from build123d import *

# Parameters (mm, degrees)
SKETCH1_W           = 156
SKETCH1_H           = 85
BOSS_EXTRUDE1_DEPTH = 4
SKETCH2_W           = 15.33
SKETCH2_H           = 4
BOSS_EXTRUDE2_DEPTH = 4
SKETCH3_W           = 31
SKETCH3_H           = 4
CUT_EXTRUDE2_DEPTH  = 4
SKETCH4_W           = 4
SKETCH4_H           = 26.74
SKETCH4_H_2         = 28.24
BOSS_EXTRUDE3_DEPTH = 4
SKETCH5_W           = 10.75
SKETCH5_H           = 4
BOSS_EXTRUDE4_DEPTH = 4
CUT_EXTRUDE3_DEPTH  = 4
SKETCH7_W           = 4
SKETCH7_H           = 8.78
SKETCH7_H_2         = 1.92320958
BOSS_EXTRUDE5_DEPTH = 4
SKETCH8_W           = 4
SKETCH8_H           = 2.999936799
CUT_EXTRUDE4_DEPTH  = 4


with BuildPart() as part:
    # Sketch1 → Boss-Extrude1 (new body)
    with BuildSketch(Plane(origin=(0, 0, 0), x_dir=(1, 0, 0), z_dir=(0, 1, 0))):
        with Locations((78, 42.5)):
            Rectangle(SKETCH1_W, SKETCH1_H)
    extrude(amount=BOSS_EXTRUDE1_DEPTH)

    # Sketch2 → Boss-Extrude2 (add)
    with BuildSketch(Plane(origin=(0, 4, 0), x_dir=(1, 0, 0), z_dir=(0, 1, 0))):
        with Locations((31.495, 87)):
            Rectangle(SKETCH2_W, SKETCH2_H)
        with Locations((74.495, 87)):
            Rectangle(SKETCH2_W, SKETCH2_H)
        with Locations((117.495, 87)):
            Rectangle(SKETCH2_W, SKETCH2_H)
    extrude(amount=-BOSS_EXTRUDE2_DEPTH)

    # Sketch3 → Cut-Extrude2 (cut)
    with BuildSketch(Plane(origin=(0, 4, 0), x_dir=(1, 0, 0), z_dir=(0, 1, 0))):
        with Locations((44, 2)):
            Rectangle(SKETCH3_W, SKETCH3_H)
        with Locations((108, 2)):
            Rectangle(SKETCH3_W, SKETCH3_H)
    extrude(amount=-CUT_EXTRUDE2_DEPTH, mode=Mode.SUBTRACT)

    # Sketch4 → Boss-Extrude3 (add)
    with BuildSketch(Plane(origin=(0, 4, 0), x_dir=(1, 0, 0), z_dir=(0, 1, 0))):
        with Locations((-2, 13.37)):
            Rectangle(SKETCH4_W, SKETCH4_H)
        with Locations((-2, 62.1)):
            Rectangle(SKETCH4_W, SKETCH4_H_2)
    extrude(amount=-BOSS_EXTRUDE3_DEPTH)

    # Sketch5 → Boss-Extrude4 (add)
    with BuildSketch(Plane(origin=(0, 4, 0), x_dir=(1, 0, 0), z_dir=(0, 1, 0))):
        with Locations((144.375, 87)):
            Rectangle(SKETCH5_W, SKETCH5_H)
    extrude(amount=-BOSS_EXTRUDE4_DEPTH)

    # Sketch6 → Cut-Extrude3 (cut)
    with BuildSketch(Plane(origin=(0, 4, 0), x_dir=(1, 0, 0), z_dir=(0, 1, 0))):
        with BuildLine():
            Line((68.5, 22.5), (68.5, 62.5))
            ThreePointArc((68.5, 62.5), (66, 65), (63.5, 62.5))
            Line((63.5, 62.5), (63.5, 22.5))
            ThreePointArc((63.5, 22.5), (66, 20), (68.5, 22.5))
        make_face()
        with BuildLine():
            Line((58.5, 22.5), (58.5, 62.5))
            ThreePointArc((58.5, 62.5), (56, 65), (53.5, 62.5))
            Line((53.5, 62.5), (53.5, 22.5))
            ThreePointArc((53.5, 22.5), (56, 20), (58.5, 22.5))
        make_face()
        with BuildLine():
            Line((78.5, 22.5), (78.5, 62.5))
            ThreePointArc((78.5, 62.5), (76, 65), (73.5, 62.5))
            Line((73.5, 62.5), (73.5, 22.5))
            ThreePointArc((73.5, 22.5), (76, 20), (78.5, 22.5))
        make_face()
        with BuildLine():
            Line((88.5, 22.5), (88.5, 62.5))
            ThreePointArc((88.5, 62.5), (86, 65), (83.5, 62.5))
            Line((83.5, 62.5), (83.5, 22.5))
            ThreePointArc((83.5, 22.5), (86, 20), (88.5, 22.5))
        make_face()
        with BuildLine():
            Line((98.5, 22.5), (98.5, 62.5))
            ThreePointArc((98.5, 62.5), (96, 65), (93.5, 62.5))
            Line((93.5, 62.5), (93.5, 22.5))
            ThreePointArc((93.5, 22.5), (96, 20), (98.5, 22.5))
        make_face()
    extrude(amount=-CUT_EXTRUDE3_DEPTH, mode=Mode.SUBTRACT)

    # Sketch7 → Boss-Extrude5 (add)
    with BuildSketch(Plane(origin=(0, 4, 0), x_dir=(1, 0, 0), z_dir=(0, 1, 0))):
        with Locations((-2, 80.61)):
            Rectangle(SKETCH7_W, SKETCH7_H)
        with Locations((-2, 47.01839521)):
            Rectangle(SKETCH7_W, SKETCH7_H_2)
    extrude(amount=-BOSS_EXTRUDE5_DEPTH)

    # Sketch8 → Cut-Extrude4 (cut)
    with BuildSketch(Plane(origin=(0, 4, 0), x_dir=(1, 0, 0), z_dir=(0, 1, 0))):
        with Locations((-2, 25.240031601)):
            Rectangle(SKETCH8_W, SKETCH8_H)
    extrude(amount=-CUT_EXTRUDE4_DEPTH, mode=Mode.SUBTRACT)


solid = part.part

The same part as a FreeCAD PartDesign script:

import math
import FreeCAD as App
import Part
import Sketcher
Q = App.Units.Quantity


def add_polygon(sketch, points):
    """Adds a closed chain of lines whose ends are joined by coincident constraints."""
    first, n = sketch.GeometryCount, len(points)
    for a, b in zip(points, points[1:] + points[:1]):
        sketch.addGeometry(Part.LineSegment(App.Vector(*a, 0), App.Vector(*b, 0)), False)
    for i in range(n):
        sketch.addConstraint(Sketcher.Constraint("Coincident", first + i, 2, first + (i + 1) % n, 1))

doc = App.newDocument("Part")
params = doc.addObject("Spreadsheet::Sheet", "Params")
for row, (alias, value) in enumerate([
    ("sketch1_width", "156 mm"),
    ("sketch1_height", "85 mm"),
    ("pad1_length", "4 mm"),
    ("sketch2_height", "4 mm"),
    ("sketch2_width", "15.33 mm"),
    ("pad2_length", "4 mm"),
    ("sketch3_width", "31 mm"),
    ("sketch3_height", "4 mm"),
    ("pocket1_length", "4 mm"),
    ("sketch4_width", "4 mm"),
    ("sketch4_height", "26.74 mm"),
    ("sketch4_height2", "28.24 mm"),
    ("pad3_length", "4 mm"),
    ("sketch5_height", "4 mm"),
    ("sketch5_width", "10.75 mm"),
    ("pad4_length", "4 mm"),
    ("sketch6_radius", "2.5 mm"),
    ("sketch6_height", "40 mm"),
    ("pocket2_length", "4 mm"),
    ("sketch7_width", "4 mm"),
    ("sketch7_height", "8.78 mm"),
    ("pad5_length", "4 mm"),
    ("sketch8_width", "4 mm"),
    ("pocket3_length", "4 mm"),
], start=1):
    params.set(f"A{row}", alias)
    params.set(f"B{row}", "=" + value)
    params.setAlias(f"B{row}", alias)

body = doc.addObject("PartDesign::Body", "Body")

# Sketch on XZ plane
sketch1 = body.newObject("Sketcher::SketchObject", "Sketch")
sketch1.AttachmentSupport = (doc.getObject("XZ_Plane"), [""])
sketch1.MapMode = "FlatFace"
add_polygon(sketch1, [(0, -85), (0, 0), (156, 0), (156, -85)])  # lines 0-3
sketch1.addConstraint([
    Sketcher.Constraint("Vertical", 0),
    Sketcher.Constraint("Horizontal", 1),
    Sketcher.Constraint("Vertical", 2),
    Sketcher.Constraint("Horizontal", 3),
    Sketcher.Constraint("Coincident", 0, 2, -1, 1),
    Sketcher.Constraint("DistanceX", 1, 1, 1, 2, Q("156 mm")),
    Sketcher.Constraint("DistanceY", 0, 1, 0, 2, Q("85 mm")),
])
sketch1.setExpression("Constraints[9]", "Params.sketch1_width")
sketch1.setExpression("Constraints[10]", "Params.sketch1_height")
pad1 = body.newObject("PartDesign::Pad", "Pad")
pad1.Profile = sketch1
pad1.setExpression("Length", "Params.pad1_length")
pad1.Reversed = True

# Sketch on XZ plane
sketch2 = body.newObject("Sketcher::SketchObject", "Sketch001")
sketch2.AttachmentSupport = (doc.getObject("XZ_Plane"), [""])
sketch2.MapMode = "FlatFace"
sketch2.AttachmentOffset = App.Placement(App.Vector(0, 0, -4), App.Rotation())
add_polygon(sketch2, [(23.83, -89), (23.83, -85), (39.16, -85), (39.16, -89)])  # lines 0-3
add_polygon(sketch2, [(66.83, -89), (66.83, -85), (82.16, -85), (82.16, -89)])  # lines 4-7
add_polygon(sketch2, [(109.83, -89), (109.83, -85), (125.16, -85), (125.16, -89)])  # lines 8-11
sketch2.addConstraint([
    Sketcher.Constraint("Vertical", 0),
    Sketcher.Constraint("Horizontal", 1),
    Sketcher.Constraint("Vertical", 2),
    Sketcher.Constraint("Horizontal", 3),
    Sketcher.Constraint("Vertical", 4),
    Sketcher.Constraint("Horizontal", 5),
    Sketcher.Constraint("Vertical", 6),
    Sketcher.Constraint("Horizontal", 7),
    Sketcher.Constraint("Vertical", 8),
    Sketcher.Constraint("Horizontal", 9),
    Sketcher.Constraint("Vertical", 10),
    Sketcher.Constraint("Horizontal", 11),
    Sketcher.Constraint("Horizontal", 1, 2, 4, 2),
    Sketcher.Constraint("Horizontal", 3, 2, 6, 2),
    Sketcher.Constraint("Horizontal", 5, 2, 8, 2),
    Sketcher.Constraint("Horizontal", 7, 2, 10, 2),
    Sketcher.Constraint("Equal", 3, 5),
    Sketcher.Constraint("Equal", 7, 9),
    Sketcher.Constraint("DistanceY", 0, 1, 0, 2, Q("4 mm")),
    Sketcher.Constraint("DistanceY", 0, 2, -1, 1, Q("85 mm")),
    Sketcher.Constraint("DistanceX", 0, 2, 4, 2, Q("43 mm")),
    Sketcher.Constraint("DistanceX", 4, 2, 8, 2, Q("43 mm")),
    Sketcher.Constraint("DistanceX", 1, 1, 1, 2, Q("15.33 mm")),
    Sketcher.Constraint("DistanceX", -1, 1, 0, 2, Q("23.83 mm")),
])
sketch2.setExpression("Constraints[30]", "Params.sketch2_height")
sketch2.setExpression("Constraints[34]", "Params.sketch2_width")
pad2 = body.newObject("PartDesign::Pad", "Pad001")
pad2.Profile = sketch2
pad2.setExpression("Length", "Params.pad2_length")

# Sketch on XZ plane
sketch3 = body.newObject("Sketcher::SketchObject", "Sketch002")
sketch3.AttachmentSupport = (doc.getObject("XZ_Plane"), [""])
sketch3.MapMode = "FlatFace"
sketch3.AttachmentOffset = App.Placement(App.Vector(0, 0, -4), App.Rotation())
add_polygon(sketch3, [(28.5, -4), (28.5, 0), (59.5, 0), (59.5, -4)])  # lines 0-3
add_polygon(sketch3, [(92.5, -4), (92.5, 0), (123.5, 0), (123.5, -4)])  # lines 4-7
sketch3.addConstraint([
    Sketcher.Constraint("Vertical", 0),
    Sketcher.Constraint("Horizontal", 1),
    Sketcher.Constraint("Vertical", 2),
    Sketcher.Constraint("Horizontal", 3),
    Sketcher.Constraint("Vertical", 4),
    Sketcher.Constraint("Horizontal", 5),
    Sketcher.Constraint("Vertical", 6),
    Sketcher.Constraint("Horizontal", 7),
    Sketcher.Constraint("PointOnObject", 0, 2, -1),
    Sketcher.Constraint("PointOnObject", 4, 2, -1),
    Sketcher.Constraint("Horizontal", 3, 2, 6, 2),
    Sketcher.Constraint("Equal", 3, 5),
    Sketcher.Constraint("DistanceX", 1, 1, 1, 2, Q("31 mm")),
    Sketcher.Constraint("DistanceY", 0, 1, 0, 2, Q("4 mm")),
    Sketcher.Constraint("DistanceX", 1, 2, 4, 2, Q("33 mm")),
    Sketcher.Constraint("DistanceX", -1, 1, 0, 2, Q("28.5 mm")),
])
sketch3.setExpression("Constraints[20]", "Params.sketch3_width")
sketch3.setExpression("Constraints[21]", "Params.sketch3_height")
pocket1 = body.newObject("PartDesign::Pocket", "Pocket")
pocket1.Profile = sketch3
pocket1.setExpression("Length", "Params.pocket1_length")
pocket1.Reversed = True

# Sketch on XZ plane
sketch4 = body.newObject("Sketcher::SketchObject", "Sketch003")
sketch4.AttachmentSupport = (doc.getObject("XZ_Plane"), [""])
sketch4.MapMode = "FlatFace"
sketch4.AttachmentOffset = App.Placement(App.Vector(0, 0, -4), App.Rotation())
add_polygon(sketch4, [(-4, -26.74), (-4, 0), (0, 0), (0, -26.74)])  # lines 0-3
add_polygon(sketch4, [(-4, -76.22), (-4, -47.98), (0, -47.98), (0, -76.22)])  # lines 4-7
sketch4.addConstraint([
    Sketcher.Constraint("Vertical", 0),
    Sketcher.Constraint("Horizontal", 1),
    Sketcher.Constraint("Vertical", 2),
    Sketcher.Constraint("Horizontal", 3),
    Sketcher.Constraint("Vertical", 4),
    Sketcher.Constraint("Horizontal", 5),
    Sketcher.Constraint("Vertical", 6),
    Sketcher.Constraint("Horizontal", 7),
    Sketcher.Constraint("Coincident", 1, 2, -1, 1),
    Sketcher.Constraint("PointOnObject", 5, 2, -2),
    Sketcher.Constraint("Vertical", 3, 2, 4, 2),
    Sketcher.Constraint("DistanceX", 1, 1, 1, 2, Q("4 mm")),
    Sketcher.Constraint("DistanceY", 0, 1, 0, 2, Q("26.74 mm")),
    Sketcher.Constraint("DistanceY", 4, 1, 4, 2, Q("28.24 mm")),
    Sketcher.Constraint("DistanceY", 4, 2, -1, 1, Q("47.98 mm")),
])
sketch4.setExpression("Constraints[19]", "Params.sketch4_width")
sketch4.setExpression("Constraints[20]", "Params.sketch4_height")
sketch4.setExpression("Constraints[21]", "Params.sketch4_height2")
pad3 = body.newObject("PartDesign::Pad", "Pad002")
pad3.Profile = sketch4
pad3.setExpression("Length", "Params.pad3_length")

# Sketch on XZ plane
sketch5 = body.newObject("Sketcher::SketchObject", "Sketch004")
sketch5.AttachmentSupport = (doc.getObject("XZ_Plane"), [""])
sketch5.MapMode = "FlatFace"
sketch5.AttachmentOffset = App.Placement(App.Vector(0, 0, -4), App.Rotation())
add_polygon(sketch5, [(139, -89), (139, -85), (149.75, -85), (149.75, -89)])  # lines 0-3
sketch5.addConstraint([
    Sketcher.Constraint("Vertical", 0),
    Sketcher.Constraint("Horizontal", 1),
    Sketcher.Constraint("Vertical", 2),
    Sketcher.Constraint("Horizontal", 3),
    Sketcher.Constraint("DistanceY", 0, 1, 0, 2, Q("4 mm")),
    Sketcher.Constraint("DistanceX", -1, 1, 0, 2, Q("139 mm")),
    Sketcher.Constraint("DistanceY", 0, 2, -1, 1, Q("85 mm")),
    Sketcher.Constraint("DistanceX", 1, 1, 1, 2, Q("10.75 mm")),
])
sketch5.setExpression("Constraints[8]", "Params.sketch5_height")
sketch5.setExpression("Constraints[11]", "Params.sketch5_width")
pad4 = body.newObject("PartDesign::Pad", "Pad003")
pad4.Profile = sketch5
pad4.setExpression("Length", "Params.pad4_length")

# Sketch on XZ plane
sketch6 = body.newObject("Sketcher::SketchObject", "Sketch005")
sketch6.AttachmentSupport = (doc.getObject("XZ_Plane"), [""])
sketch6.MapMode = "FlatFace"
sketch6.AttachmentOffset = App.Placement(App.Vector(0, 0, -4), App.Rotation())
sketch6.addGeometry([
    Part.LineSegment(App.Vector(68.5, -22.5, 0), App.Vector(68.5, -62.5, 0)),  # 0
    Part.ArcOfCircle(Part.Circle(App.Vector(66, -62.5, 0), App.Vector(0, 0, 1), 2.5), math.radians(180), math.radians(360)),  # 1
    Part.LineSegment(App.Vector(63.5, -62.5, 0), App.Vector(63.5, -22.5, 0)),  # 2
    Part.ArcOfCircle(Part.Circle(App.Vector(66, -22.5, 0), App.Vector(0, 0, 1), 2.5), math.radians(0), math.radians(180)),  # 3
    Part.LineSegment(App.Vector(58.5, -22.5, 0), App.Vector(58.5, -62.5, 0)),  # 4
    Part.ArcOfCircle(Part.Circle(App.Vector(56, -62.5, 0), App.Vector(0, 0, 1), 2.5), math.radians(180), math.radians(360)),  # 5
    Part.LineSegment(App.Vector(53.5, -62.5, 0), App.Vector(53.5, -22.5, 0)),  # 6
    Part.ArcOfCircle(Part.Circle(App.Vector(56, -22.5, 0), App.Vector(0, 0, 1), 2.5), math.radians(0), math.radians(180)),  # 7
    Part.LineSegment(App.Vector(78.5, -22.5, 0), App.Vector(78.5, -62.5, 0)),  # 8
    Part.ArcOfCircle(Part.Circle(App.Vector(76, -62.5, 0), App.Vector(0, 0, 1), 2.5), math.radians(180), math.radians(360)),  # 9
    Part.LineSegment(App.Vector(73.5, -62.5, 0), App.Vector(73.5, -22.5, 0)),  # 10
    Part.ArcOfCircle(Part.Circle(App.Vector(76, -22.5, 0), App.Vector(0, 0, 1), 2.5), math.radians(0), math.radians(180)),  # 11
    Part.LineSegment(App.Vector(88.5, -22.5, 0), App.Vector(88.5, -62.5, 0)),  # 12
    Part.ArcOfCircle(Part.Circle(App.Vector(86, -62.5, 0), App.Vector(0, 0, 1), 2.5), math.radians(180), math.radians(360)),  # 13
    Part.LineSegment(App.Vector(83.5, -62.5, 0), App.Vector(83.5, -22.5, 0)),  # 14
    Part.ArcOfCircle(Part.Circle(App.Vector(86, -22.5, 0), App.Vector(0, 0, 1), 2.5), math.radians(0), math.radians(180)),  # 15
    Part.LineSegment(App.Vector(98.5, -22.5, 0), App.Vector(98.5, -62.5, 0)),  # 16
    Part.ArcOfCircle(Part.Circle(App.Vector(96, -62.5, 0), App.Vector(0, 0, 1), 2.5), math.radians(180), math.radians(360)),  # 17
    Part.LineSegment(App.Vector(93.5, -62.5, 0), App.Vector(93.5, -22.5, 0)),  # 18
    Part.ArcOfCircle(Part.Circle(App.Vector(96, -22.5, 0), App.Vector(0, 0, 1), 2.5), math.radians(0), math.radians(180)),  # 19
], False)
sketch6.addConstraint([
    Sketcher.Constraint("Tangent", 0, 2, 1, 2),
    Sketcher.Constraint("Tangent", 1, 1, 2, 1),
    Sketcher.Constraint("Tangent", 2, 2, 3, 2),
    Sketcher.Constraint("Tangent", 3, 1, 0, 1),
    Sketcher.Constraint("Tangent", 4, 2, 5, 2),
    Sketcher.Constraint("Tangent", 5, 1, 6, 1),
    Sketcher.Constraint("Tangent", 6, 2, 7, 2),
    Sketcher.Constraint("Tangent", 7, 1, 4, 1),
    Sketcher.Constraint("Tangent", 8, 2, 9, 2),
    Sketcher.Constraint("Tangent", 9, 1, 10, 1),
    Sketcher.Constraint("Tangent", 10, 2, 11, 2),
    Sketcher.Constraint("Tangent", 11, 1, 8, 1),
    Sketcher.Constraint("Tangent", 12, 2, 13, 2),
    Sketcher.Constraint("Tangent", 13, 1, 14, 1),
    Sketcher.Constraint("Tangent", 14, 2, 15, 2),
    Sketcher.Constraint("Tangent", 15, 1, 12, 1),
    Sketcher.Constraint("Tangent", 16, 2, 17, 2),
    Sketcher.Constraint("Tangent", 17, 1, 18, 1),
    Sketcher.Constraint("Tangent", 18, 2, 19, 2),
    Sketcher.Constraint("Tangent", 19, 1, 16, 1),
    Sketcher.Constraint("Vertical", 0),
    Sketcher.Constraint("Vertical", 2),
    Sketcher.Constraint("Vertical", 4),
    Sketcher.Constraint("Vertical", 6),
    Sketcher.Constraint("Vertical", 8),
    Sketcher.Constraint("Vertical", 10),
    Sketcher.Constraint("Vertical", 12),
    Sketcher.Constraint("Vertical", 14),
    Sketcher.Constraint("Vertical", 16),
    Sketcher.Constraint("Vertical", 18),
    Sketcher.Constraint("Equal", 3, 5),
    Sketcher.Constraint("Equal", 7, 9),
    Sketcher.Constraint("Equal", 11, 13),
    Sketcher.Constraint("Equal", 15, 17),
    Sketcher.Constraint("Horizontal", 1, 3, 5, 3),
    Sketcher.Constraint("Horizontal", 3, 3, 7, 3),
    Sketcher.Constraint("Horizontal", 5, 3, 9, 3),
    Sketcher.Constraint("Horizontal", 7, 3, 11, 3),
    Sketcher.Constraint("Horizontal", 9, 3, 13, 3),
    Sketcher.Constraint("Horizontal", 11, 3, 15, 3),
    Sketcher.Constraint("Horizontal", 13, 3, 17, 3),
    Sketcher.Constraint("Horizontal", 15, 3, 19, 3),
    Sketcher.Constraint("Radius", 1, Q("2.5 mm")),
    Sketcher.Constraint("DistanceY", 0, 2, 0, 1, Q("40 mm")),
    Sketcher.Constraint("DistanceX", -1, 1, 1, 3, Q("66 mm")),
    Sketcher.Constraint("DistanceX", -1, 1, 5, 3, Q("56 mm")),
    Sketcher.Constraint("DistanceX", -1, 1, 9, 3, Q("76 mm")),
    Sketcher.Constraint("DistanceX", -1, 1, 13, 3, Q("86 mm")),
    Sketcher.Constraint("DistanceX", -1, 1, 17, 3, Q("96 mm")),
    Sketcher.Constraint("DistanceY", 1, 3, -1, 1, Q("62.5 mm")),
])
sketch6.setExpression("Constraints[42]", "Params.sketch6_radius")
sketch6.setExpression("Constraints[43]", "Params.sketch6_height")
pocket2 = body.newObject("PartDesign::Pocket", "Pocket001")
pocket2.Profile = sketch6
pocket2.setExpression("Length", "Params.pocket2_length")
pocket2.Reversed = True

# Sketch on XZ plane
sketch7 = body.newObject("Sketcher::SketchObject", "Sketch006")
sketch7.AttachmentSupport = (doc.getObject("XZ_Plane"), [""])
sketch7.MapMode = "FlatFace"
sketch7.AttachmentOffset = App.Placement(App.Vector(0, 0, -4), App.Rotation())
add_polygon(sketch7, [(-4, -85), (-4, -76.22), (0, -76.22), (0, -85)])  # lines 0-3
add_polygon(sketch7, [(-4, -47.98), (-4, -46.05679), (0, -46.05679), (0, -47.98)])  # lines 4-7
sketch7.addConstraint([
    Sketcher.Constraint("Vertical", 0),
    Sketcher.Constraint("Horizontal", 1),
    Sketcher.Constraint("Vertical", 2),
    Sketcher.Constraint("Horizontal", 3),
    Sketcher.Constraint("Vertical", 4),
    Sketcher.Constraint("Horizontal", 5),
    Sketcher.Constraint("Vertical", 6),
    Sketcher.Constraint("Horizontal", 7),
    Sketcher.Constraint("PointOnObject", 1, 2, -2),
    Sketcher.Constraint("PointOnObject", 5, 2, -2),
    Sketcher.Constraint("Vertical", 3, 2, 4, 2),
    Sketcher.Constraint("DistanceX", 1, 1, 1, 2, Q("4 mm")),
    Sketcher.Constraint("DistanceY", 2, 2, -1, 1, Q("85 mm")),
    Sketcher.Constraint("DistanceY", 0, 1, 0, 2, Q("8.78 mm")),
    Sketcher.Constraint("DistanceY", 6, 2, -1, 1, Q("47.98 mm")),
    Sketcher.Constraint("DistanceY", 4, 1, 4, 2, Q("1.92321 mm")),
])
sketch7.setExpression("Constraints[19]", "Params.sketch7_width")
sketch7.setExpression("Constraints[21]", "Params.sketch7_height")
pad5 = body.newObject("PartDesign::Pad", "Pad004")
pad5.Profile = sketch7
pad5.setExpression("Length", "Params.pad5_length")

# Sketch on XZ plane
sketch8 = body.newObject("Sketcher::SketchObject", "Sketch007")
sketch8.AttachmentSupport = (doc.getObject("XZ_Plane"), [""])
sketch8.MapMode = "FlatFace"
sketch8.AttachmentOffset = App.Placement(App.Vector(0, 0, -4), App.Rotation())
add_polygon(sketch8, [(-4, -26.74), (-4, -23.740063), (0, -23.740063), (0, -26.74)])  # lines 0-3
sketch8.addConstraint([
    Sketcher.Constraint("Vertical", 0),
    Sketcher.Constraint("Horizontal", 1),
    Sketcher.Constraint("Vertical", 2),
    Sketcher.Constraint("Horizontal", 3),
    Sketcher.Constraint("PointOnObject", 1, 2, -2),
    Sketcher.Constraint("DistanceX", 1, 1, 1, 2, Q("4 mm")),
    Sketcher.Constraint("DistanceY", 2, 2, -1, 1, Q("26.74 mm")),
    Sketcher.Constraint("DistanceY", 0, 1, 0, 2, Q("2.999937 mm")),
])
sketch8.setExpression("Constraints[9]", "Params.sketch8_width")
pocket3 = body.newObject("PartDesign::Pocket", "Pocket002")
pocket3.Profile = sketch8
pocket3.setExpression("Length", "Params.pocket3_length")
pocket3.Reversed = True

doc.recompute()
